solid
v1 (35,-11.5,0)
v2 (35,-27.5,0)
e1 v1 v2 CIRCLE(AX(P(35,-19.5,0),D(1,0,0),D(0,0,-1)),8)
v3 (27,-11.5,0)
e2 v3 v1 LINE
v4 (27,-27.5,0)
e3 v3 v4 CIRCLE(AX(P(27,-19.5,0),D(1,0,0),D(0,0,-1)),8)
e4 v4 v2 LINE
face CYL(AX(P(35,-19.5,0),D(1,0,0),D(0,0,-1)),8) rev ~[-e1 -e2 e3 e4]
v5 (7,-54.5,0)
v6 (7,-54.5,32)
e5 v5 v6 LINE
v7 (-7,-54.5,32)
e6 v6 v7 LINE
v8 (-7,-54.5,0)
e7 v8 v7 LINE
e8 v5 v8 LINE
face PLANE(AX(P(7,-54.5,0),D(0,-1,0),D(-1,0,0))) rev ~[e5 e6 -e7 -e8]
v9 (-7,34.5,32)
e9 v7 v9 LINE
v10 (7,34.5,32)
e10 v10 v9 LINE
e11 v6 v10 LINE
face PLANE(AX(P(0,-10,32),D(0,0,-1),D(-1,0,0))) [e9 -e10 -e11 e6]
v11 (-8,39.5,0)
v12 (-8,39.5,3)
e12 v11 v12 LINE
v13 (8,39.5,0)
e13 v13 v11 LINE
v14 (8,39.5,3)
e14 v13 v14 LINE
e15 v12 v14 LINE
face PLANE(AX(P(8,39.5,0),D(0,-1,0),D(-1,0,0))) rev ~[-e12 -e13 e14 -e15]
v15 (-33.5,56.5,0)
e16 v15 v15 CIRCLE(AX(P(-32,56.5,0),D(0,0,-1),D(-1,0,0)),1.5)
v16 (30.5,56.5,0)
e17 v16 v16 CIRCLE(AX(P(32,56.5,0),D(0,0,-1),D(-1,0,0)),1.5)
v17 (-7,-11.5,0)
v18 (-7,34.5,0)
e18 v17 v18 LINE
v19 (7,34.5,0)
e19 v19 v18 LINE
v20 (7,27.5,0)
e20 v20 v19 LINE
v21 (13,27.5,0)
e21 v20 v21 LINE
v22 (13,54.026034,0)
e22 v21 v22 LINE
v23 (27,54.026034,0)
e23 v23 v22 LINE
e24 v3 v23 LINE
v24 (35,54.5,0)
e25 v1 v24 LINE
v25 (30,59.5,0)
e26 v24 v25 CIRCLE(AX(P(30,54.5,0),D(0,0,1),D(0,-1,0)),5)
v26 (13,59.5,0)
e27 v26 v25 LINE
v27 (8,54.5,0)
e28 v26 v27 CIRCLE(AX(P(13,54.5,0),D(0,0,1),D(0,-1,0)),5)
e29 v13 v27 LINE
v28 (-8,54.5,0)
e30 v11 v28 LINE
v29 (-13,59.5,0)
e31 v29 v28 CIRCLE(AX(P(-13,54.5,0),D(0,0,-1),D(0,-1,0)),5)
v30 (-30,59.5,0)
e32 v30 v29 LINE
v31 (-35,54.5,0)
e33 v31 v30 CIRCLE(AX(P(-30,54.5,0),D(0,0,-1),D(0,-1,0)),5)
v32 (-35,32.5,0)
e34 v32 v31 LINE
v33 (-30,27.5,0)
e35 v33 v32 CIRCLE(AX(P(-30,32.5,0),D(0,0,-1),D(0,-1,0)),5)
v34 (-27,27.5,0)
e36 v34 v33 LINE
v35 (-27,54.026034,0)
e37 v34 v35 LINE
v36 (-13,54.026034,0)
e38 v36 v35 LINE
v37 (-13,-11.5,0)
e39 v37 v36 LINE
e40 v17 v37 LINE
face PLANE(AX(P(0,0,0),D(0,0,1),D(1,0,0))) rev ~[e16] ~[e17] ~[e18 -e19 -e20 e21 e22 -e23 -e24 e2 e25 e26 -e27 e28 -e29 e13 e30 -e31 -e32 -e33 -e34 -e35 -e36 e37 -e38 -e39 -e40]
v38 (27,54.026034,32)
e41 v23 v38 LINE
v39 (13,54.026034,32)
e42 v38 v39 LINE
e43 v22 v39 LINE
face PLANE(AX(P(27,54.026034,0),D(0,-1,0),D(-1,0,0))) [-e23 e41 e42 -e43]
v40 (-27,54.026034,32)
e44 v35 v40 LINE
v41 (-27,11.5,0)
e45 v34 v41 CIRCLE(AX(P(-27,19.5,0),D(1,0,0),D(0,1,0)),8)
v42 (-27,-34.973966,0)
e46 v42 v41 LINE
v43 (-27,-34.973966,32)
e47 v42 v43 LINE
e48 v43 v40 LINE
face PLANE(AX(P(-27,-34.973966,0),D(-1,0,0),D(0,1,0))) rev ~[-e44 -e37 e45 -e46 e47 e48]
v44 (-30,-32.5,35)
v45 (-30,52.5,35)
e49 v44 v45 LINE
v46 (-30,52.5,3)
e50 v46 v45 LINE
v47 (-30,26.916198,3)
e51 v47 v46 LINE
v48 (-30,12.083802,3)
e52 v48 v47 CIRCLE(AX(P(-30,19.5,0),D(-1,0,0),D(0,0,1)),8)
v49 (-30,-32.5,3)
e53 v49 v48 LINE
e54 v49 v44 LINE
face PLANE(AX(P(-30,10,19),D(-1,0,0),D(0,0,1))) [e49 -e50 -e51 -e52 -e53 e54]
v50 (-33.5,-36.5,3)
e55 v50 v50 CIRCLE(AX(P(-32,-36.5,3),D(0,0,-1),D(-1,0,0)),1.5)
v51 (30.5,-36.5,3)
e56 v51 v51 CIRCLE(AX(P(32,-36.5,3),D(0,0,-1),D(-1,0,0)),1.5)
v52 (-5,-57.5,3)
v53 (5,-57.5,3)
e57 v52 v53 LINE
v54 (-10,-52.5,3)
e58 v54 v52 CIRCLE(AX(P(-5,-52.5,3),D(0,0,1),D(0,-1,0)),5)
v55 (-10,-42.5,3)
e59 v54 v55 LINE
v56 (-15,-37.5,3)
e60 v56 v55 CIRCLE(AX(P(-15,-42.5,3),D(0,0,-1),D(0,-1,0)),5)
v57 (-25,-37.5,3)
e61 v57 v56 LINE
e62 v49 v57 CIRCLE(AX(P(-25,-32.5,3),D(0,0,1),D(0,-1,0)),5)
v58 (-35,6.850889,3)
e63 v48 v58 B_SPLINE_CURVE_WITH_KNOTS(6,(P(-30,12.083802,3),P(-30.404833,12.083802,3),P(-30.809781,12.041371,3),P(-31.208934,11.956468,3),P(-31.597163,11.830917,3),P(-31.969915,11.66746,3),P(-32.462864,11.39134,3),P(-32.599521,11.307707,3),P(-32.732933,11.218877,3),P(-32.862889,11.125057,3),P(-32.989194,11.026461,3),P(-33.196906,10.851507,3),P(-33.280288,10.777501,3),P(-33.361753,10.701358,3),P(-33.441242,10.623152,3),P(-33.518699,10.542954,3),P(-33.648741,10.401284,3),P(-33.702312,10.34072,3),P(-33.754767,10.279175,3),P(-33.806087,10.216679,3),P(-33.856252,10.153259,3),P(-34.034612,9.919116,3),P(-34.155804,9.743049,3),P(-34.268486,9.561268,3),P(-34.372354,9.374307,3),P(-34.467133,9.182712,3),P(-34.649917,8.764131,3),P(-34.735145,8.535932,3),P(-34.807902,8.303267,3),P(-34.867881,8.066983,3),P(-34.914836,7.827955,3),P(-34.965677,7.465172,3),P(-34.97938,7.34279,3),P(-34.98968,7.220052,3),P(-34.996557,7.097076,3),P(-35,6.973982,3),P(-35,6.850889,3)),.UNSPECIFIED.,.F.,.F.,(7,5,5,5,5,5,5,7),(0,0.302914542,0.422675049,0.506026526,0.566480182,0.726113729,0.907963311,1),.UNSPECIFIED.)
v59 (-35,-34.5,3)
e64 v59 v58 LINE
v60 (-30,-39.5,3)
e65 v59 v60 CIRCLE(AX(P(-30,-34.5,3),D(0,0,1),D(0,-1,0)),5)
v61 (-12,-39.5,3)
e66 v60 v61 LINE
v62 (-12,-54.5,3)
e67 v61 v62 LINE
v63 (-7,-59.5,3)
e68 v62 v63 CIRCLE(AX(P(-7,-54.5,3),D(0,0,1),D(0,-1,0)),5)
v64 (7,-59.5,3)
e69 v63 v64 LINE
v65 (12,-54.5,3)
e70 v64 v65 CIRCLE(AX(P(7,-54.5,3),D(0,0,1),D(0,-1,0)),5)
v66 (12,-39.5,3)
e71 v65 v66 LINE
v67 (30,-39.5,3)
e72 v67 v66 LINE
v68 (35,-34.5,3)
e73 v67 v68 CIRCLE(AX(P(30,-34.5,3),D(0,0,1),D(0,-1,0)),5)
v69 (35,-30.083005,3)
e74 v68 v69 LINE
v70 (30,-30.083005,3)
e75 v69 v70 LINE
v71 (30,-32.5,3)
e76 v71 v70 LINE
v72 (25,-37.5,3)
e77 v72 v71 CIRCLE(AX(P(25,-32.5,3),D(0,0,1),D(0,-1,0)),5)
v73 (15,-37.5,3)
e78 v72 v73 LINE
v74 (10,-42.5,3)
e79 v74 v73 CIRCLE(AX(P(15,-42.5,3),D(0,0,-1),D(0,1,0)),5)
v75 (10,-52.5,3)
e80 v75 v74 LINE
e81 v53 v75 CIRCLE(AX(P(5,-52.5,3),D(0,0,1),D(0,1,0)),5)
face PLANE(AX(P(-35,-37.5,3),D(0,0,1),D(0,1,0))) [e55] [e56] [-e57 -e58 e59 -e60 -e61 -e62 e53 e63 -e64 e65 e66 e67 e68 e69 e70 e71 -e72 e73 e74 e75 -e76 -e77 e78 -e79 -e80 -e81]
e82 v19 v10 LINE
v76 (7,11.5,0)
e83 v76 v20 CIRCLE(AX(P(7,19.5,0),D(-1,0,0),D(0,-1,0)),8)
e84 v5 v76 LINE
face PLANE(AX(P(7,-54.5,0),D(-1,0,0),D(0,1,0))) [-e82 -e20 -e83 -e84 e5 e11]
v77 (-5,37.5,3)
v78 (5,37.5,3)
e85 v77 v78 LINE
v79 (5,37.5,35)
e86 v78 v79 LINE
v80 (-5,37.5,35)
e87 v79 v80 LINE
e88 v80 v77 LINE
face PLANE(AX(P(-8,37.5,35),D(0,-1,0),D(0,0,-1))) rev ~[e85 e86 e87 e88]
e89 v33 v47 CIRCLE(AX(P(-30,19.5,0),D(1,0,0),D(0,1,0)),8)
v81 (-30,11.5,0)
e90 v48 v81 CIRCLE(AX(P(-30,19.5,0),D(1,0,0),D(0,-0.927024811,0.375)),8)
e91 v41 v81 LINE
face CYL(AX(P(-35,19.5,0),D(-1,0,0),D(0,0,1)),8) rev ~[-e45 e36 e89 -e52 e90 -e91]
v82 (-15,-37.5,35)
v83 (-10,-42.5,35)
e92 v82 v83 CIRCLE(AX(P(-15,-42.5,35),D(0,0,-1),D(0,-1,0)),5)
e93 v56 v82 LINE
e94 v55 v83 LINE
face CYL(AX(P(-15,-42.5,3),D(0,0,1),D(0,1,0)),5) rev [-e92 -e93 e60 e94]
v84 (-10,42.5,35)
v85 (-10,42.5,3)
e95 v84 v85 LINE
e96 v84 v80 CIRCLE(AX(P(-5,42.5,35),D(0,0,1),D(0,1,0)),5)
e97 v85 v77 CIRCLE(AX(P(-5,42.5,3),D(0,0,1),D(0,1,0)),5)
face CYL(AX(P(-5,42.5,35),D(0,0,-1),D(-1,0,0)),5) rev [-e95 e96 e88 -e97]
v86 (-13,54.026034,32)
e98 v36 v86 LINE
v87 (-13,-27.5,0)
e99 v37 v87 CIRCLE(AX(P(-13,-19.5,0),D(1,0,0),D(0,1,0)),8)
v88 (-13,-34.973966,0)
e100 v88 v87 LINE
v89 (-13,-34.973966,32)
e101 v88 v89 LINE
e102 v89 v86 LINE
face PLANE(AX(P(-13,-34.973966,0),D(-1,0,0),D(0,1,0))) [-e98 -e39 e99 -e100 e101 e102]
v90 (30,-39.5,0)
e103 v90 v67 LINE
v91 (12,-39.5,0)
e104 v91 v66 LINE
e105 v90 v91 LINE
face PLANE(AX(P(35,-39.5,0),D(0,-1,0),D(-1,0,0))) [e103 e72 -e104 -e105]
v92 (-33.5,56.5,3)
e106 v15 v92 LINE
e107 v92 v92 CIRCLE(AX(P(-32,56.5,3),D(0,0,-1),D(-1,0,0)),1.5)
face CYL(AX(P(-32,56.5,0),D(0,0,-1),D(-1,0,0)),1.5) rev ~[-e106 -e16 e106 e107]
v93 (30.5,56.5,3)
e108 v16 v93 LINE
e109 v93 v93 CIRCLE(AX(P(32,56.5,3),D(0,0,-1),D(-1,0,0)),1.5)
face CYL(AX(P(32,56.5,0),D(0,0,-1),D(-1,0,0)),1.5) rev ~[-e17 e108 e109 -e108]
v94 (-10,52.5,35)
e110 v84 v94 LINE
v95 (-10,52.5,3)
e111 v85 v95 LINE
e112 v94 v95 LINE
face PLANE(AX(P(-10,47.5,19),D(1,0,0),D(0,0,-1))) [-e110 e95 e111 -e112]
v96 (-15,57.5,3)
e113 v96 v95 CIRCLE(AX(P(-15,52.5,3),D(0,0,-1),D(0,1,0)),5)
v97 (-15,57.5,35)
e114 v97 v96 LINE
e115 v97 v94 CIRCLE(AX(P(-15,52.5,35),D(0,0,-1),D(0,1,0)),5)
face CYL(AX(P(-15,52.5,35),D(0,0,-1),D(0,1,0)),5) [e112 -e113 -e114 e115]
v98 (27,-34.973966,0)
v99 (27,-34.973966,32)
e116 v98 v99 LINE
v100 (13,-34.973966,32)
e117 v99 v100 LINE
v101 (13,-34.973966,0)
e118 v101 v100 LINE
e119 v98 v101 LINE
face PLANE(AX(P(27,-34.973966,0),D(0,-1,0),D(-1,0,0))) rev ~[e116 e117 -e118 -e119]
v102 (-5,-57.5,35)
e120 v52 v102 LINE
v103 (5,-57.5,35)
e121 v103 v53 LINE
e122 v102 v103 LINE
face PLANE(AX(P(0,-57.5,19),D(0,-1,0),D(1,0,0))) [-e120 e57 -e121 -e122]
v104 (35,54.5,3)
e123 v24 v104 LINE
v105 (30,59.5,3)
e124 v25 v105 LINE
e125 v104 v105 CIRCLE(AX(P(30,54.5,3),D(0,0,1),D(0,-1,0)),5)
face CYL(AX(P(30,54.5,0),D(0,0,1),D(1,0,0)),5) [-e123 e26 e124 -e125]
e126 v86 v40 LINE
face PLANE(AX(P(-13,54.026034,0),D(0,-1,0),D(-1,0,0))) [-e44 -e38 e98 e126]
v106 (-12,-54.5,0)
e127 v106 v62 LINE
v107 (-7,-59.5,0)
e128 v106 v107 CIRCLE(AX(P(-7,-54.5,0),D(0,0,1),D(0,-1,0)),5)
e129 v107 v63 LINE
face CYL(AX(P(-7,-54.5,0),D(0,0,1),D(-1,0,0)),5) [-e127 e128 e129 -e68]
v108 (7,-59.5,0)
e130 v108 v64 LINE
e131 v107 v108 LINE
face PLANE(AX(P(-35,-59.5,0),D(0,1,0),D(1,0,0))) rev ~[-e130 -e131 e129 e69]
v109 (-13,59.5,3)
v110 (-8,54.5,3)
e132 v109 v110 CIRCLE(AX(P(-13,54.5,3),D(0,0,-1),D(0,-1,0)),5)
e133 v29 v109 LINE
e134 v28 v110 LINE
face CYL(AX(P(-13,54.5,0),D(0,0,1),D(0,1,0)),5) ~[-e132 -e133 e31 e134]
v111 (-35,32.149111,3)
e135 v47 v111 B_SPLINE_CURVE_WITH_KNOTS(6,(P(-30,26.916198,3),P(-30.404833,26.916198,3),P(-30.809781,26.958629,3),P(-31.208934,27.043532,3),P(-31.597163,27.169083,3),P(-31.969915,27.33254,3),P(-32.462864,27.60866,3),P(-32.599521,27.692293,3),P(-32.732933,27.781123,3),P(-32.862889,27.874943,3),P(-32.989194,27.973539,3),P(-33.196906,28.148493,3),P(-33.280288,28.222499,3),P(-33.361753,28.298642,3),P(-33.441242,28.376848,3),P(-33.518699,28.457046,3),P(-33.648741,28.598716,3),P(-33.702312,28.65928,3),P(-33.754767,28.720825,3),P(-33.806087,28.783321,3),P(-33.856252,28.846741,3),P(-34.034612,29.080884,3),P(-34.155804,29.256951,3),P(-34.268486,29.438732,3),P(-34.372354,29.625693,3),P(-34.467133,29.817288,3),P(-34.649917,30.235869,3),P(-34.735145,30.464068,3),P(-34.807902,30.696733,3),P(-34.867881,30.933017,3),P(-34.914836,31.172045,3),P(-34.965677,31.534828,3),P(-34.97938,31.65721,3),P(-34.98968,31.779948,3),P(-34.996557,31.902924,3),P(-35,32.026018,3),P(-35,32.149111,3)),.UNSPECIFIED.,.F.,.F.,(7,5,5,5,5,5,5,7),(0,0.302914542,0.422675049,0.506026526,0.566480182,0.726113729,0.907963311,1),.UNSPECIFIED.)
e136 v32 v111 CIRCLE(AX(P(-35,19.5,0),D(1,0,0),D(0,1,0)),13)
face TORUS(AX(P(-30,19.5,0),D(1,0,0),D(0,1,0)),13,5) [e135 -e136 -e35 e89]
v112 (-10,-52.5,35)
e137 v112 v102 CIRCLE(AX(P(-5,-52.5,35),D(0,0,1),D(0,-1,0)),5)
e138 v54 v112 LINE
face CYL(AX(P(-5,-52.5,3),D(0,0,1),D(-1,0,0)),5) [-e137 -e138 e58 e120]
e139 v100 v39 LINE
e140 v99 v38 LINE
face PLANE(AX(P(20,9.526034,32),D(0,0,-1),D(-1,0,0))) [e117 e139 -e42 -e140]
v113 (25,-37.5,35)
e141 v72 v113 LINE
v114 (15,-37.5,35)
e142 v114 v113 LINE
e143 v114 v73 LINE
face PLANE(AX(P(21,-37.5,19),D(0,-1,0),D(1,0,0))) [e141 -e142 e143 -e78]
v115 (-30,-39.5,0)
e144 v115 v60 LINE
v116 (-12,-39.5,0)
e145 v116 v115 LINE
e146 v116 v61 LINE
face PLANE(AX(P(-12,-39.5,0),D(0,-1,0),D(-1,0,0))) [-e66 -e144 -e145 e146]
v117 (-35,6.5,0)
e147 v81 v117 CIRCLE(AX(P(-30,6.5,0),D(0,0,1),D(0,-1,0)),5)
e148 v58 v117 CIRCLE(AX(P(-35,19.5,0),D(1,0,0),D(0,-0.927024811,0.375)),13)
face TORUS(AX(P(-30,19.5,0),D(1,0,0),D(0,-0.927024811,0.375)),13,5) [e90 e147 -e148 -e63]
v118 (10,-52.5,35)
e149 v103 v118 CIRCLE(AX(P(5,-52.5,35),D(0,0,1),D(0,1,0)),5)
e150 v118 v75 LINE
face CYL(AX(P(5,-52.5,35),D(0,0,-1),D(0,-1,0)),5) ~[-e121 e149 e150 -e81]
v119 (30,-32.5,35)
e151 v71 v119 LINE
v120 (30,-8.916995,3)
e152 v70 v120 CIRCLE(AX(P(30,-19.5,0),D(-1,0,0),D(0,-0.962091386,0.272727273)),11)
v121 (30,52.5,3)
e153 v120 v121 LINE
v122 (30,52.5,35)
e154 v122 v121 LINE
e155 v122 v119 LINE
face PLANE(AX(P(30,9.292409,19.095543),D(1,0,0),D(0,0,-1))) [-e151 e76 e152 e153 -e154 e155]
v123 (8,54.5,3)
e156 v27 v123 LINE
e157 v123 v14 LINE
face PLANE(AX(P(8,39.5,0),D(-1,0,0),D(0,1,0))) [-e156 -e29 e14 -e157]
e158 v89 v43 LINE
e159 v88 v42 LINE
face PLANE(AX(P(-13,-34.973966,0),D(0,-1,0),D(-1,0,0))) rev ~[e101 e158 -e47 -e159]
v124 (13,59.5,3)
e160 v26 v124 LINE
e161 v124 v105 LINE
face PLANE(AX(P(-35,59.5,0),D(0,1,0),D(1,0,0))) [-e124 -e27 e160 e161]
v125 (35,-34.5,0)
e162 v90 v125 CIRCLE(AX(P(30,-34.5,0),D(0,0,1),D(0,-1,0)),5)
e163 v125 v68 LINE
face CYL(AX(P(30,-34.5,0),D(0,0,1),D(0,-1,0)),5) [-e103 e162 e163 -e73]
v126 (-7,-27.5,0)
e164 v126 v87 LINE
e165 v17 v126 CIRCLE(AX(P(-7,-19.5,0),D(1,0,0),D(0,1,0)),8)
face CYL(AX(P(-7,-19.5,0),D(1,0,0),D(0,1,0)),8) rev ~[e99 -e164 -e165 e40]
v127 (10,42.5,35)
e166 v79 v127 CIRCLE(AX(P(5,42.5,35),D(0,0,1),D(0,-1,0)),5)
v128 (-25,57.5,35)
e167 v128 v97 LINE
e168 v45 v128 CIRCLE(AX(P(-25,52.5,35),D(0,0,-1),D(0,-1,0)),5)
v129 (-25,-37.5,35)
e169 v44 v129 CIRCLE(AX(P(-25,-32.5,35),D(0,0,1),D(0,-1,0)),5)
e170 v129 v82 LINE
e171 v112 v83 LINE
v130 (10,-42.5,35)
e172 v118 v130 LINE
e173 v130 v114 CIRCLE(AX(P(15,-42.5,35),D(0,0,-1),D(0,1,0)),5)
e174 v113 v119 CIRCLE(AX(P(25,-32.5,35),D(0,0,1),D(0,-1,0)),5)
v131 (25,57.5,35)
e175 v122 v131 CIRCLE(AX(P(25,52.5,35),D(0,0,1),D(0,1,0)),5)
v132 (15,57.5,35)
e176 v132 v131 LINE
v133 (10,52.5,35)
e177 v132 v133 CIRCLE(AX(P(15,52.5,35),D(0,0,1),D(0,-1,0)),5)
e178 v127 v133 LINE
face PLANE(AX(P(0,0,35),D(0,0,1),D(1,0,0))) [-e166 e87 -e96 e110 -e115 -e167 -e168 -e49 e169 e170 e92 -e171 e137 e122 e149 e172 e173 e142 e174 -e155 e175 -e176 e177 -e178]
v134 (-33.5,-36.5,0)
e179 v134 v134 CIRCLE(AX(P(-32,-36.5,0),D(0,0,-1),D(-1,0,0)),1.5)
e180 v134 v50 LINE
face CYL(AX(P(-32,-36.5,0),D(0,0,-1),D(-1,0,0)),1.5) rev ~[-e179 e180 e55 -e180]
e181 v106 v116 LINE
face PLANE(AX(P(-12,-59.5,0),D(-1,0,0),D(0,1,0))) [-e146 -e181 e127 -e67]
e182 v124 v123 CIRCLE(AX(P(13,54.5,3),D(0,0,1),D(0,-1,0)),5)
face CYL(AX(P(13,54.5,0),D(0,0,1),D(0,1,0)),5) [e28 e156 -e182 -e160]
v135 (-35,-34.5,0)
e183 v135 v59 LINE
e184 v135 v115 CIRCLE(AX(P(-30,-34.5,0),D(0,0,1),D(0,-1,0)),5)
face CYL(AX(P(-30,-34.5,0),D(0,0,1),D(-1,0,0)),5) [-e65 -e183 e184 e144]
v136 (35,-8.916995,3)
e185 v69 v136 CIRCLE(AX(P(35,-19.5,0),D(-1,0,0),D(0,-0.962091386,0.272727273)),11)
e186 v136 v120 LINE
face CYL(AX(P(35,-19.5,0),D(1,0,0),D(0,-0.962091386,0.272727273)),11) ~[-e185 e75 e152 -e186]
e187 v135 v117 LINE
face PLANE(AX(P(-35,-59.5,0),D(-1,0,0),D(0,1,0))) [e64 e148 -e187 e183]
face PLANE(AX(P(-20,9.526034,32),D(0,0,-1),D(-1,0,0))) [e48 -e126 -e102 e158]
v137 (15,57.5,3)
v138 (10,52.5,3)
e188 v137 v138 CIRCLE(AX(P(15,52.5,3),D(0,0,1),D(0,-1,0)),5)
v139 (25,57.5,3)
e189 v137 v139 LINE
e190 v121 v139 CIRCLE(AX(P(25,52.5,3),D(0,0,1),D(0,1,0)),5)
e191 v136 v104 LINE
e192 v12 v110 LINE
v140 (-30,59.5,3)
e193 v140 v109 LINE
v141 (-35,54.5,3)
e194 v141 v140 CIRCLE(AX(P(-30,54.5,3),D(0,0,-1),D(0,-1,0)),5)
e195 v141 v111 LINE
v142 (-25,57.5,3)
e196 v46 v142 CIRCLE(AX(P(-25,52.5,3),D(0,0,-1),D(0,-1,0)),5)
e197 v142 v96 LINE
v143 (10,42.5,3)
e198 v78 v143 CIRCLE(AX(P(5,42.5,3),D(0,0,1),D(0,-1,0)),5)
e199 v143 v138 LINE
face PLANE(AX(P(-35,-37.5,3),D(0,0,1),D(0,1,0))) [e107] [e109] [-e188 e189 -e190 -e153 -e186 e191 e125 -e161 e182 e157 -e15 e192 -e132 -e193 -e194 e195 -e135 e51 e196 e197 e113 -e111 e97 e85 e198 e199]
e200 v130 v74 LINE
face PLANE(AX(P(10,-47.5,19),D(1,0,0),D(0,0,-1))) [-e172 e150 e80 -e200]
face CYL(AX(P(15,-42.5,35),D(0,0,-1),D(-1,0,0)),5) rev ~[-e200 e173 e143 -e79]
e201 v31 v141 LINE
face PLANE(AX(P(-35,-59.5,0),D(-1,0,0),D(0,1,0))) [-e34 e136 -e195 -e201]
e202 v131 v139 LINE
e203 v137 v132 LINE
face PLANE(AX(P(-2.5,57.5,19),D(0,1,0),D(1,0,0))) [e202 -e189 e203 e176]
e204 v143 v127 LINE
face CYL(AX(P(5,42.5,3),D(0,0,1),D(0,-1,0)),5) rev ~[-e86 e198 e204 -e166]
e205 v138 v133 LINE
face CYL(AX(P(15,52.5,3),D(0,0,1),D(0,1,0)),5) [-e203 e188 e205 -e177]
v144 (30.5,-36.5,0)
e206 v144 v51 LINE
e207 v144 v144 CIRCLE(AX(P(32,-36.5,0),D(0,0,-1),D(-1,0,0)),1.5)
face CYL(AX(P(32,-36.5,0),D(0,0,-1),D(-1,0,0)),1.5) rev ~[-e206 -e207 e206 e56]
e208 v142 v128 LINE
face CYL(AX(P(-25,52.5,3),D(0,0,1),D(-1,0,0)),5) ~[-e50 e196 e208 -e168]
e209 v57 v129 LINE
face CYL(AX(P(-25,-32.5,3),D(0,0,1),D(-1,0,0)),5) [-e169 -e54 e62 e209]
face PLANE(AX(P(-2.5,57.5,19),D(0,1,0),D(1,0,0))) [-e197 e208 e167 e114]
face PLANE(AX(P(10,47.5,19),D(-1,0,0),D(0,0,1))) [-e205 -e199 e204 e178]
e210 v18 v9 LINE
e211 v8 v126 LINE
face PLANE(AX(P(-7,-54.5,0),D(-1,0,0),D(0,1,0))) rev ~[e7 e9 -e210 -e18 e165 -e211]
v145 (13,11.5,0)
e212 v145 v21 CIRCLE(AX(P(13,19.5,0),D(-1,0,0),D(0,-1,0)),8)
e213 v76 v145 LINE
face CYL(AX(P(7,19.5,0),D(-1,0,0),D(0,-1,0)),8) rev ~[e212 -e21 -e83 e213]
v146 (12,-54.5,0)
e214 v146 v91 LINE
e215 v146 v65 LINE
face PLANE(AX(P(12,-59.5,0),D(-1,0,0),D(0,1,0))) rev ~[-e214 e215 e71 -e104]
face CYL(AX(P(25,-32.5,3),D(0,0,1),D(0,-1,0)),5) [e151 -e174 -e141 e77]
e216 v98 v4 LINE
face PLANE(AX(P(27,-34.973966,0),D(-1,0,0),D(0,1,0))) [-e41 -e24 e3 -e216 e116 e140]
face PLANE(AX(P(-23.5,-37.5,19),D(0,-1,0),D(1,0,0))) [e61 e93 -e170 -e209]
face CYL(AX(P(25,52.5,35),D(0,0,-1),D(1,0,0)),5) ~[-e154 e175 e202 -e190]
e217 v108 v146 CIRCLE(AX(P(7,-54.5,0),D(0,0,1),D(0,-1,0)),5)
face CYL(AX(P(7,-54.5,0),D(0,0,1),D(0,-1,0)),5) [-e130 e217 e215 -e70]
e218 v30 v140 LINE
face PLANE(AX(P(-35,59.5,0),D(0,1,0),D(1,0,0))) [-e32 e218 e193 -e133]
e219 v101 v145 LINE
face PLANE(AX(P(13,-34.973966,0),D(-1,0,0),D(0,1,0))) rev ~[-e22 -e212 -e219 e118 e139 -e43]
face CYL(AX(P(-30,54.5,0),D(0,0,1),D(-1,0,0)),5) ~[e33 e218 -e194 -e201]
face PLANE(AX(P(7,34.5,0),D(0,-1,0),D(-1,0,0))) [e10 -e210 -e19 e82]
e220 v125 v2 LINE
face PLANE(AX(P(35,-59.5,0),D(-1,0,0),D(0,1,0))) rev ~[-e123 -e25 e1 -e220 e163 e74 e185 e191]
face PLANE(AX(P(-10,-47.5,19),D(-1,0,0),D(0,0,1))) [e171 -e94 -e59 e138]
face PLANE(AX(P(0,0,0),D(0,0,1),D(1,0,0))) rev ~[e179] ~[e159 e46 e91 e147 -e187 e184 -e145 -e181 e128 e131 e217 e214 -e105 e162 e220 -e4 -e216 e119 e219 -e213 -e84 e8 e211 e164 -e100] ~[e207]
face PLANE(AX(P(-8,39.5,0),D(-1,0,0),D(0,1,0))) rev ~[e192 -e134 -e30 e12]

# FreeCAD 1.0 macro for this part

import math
import FreeCAD as App
import Part
import Sketcher

V = App.Vector
Q = App.Units.Quantity


def edges_at(feature, points):
    """Names of the edges that pass closest to the given points."""
    edges = feature.Shape.Edges
    near = lambda p: min(range(len(edges)), key=lambda i: edges[i].distToShape(Part.Vertex(*p))[0])
    return sorted({f"Edge{near(p) + 1}" for p in points})


def add_polygon(sketch, points):
    """Adds a closed chain of lines whose ends are joined by coincident constraints."""
    first, n = sketch.GeometryCount, len(points)
    for a, b in zip(points, points[1:] + points[:1]):
        sketch.addGeometry(Part.LineSegment(App.Vector(*a, 0), App.Vector(*b, 0)), False)
    for i in range(n):
        sketch.addConstraint(Sketcher.Constraint("Coincident", first + i, 2, first + (i + 1) % n, 1))

doc = App.newDocument("Part")
params = doc.addObject("Spreadsheet::Sheet", "Params")
for row, (alias, value) in enumerate([
    ("sketch1_width", "70 mm"),
    ("sketch1_height", "119 mm"),
    ("pad1_length", "35 mm"),
    ("sketch2_diameter", "16 mm"),
    ("pocket1_length", "8 mm"),
    ("sketch3_diameter", "16 mm"),
    ("pocket2_length", "8 mm"),
    ("sketch4_width", "14 mm"),
    ("sketch4_height", "89 mm"),
    ("pocket3_length", "32 mm"),
    ("sketch5_radius", "8 mm"),
    ("sketch6_radius", "8 mm"),
    ("sketch7_width", "23 mm"),
    ("sketch7_width2", "16 mm"),
    ("sketch7_height", "20 mm"),
    ("sketch8_radius", "11 mm"),
    ("sketch8_width", "99 mm"),
    ("sketch8_height", "32 mm"),
    ("pocket7_length", "5 mm"),
    ("sketch9_width", "18 mm"),
    ("sketch9_height", "32 mm"),
    ("pocket8_length", "2 mm"),
    ("sketch10_width", "24 mm"),
    ("sketch10_height", "32 mm"),
    ("pocket9_length", "2 mm"),
    ("sketch11_width", "23 mm"),
    ("sketch11_height", "32 mm"),
    ("pocket10_length", "2 mm"),
    ("sketch12_width", "20 mm"),
    ("sketch12_height", "32 mm"),
    ("pocket11_length", "2 mm"),
    ("sketch13_width", "20 mm"),
    ("sketch13_height", "32 mm"),
    ("pocket12_length", "2 mm"),
    ("sketch14_width", "65 mm"),
    ("sketch14_height", "32 mm"),
    ("pocket13_length", "2 mm"),
    ("sketch15_width", "16 mm"),
    ("sketch15_height", "32 mm"),
    ("pocket14_length", "2 mm"),
    ("sketch16_width", "20 mm"),
    ("sketch16_height", "32 mm"),
    ("pocket15_length", "2 mm"),
    ("sketch17_width", "20 mm"),
    ("sketch17_height", "32 mm"),
    ("pocket16_length", "2 mm"),
    ("sketch18_width", "95 mm"),
    ("sketch18_height", "32 mm"),
    ("pocket17_length", "5 mm"),
    ("sketch19_diameter", "3 mm"),
    ("pocket18_length", "10 mm"),
    ("fillet_radius", "5 mm"),
    ("fillet2_radius", "5 mm"),
], start=1):
    params.set(f"A{row}", alias)
    params.set(f"B{row}", "=" + value)
    params.setAlias(f"B{row}", alias)

body = doc.addObject("PartDesign::Body", "Body")

# Sketch on XY plane
sketch1 = body.newObject("Sketcher::SketchObject", "Sketch")
sketch1.AttachmentSupport = (doc.getObject("XY_Plane"), [""])
sketch1.MapMode = "FlatFace"
add_polygon(sketch1, [(-35, 60), (-35, -60), (35, -60), (35, 60)])  # lines 0-3
sketch1.addConstraint(Sketcher.Constraint("Vertical", 0))
sketch1.addConstraint(Sketcher.Constraint("Horizontal", 1))
sketch1.addConstraint(Sketcher.Constraint("Vertical", 2))
sketch1.addConstraint(Sketcher.Constraint("Horizontal", 3))
sketch1.addConstraint(Sketcher.Constraint("Symmetric", 0, 2, 2, 2, -1, 1))
sketch1.addConstraint(Sketcher.Constraint("DistanceX", 1, 1, 1, 2, Q("70 mm")))
sketch1.addConstraint(Sketcher.Constraint("DistanceY", 0, 2, 0, 1, Q("119 mm")))
sketch1.setExpression("Constraints[9]", "Params.sketch1_width")
sketch1.setExpression("Constraints[10]", "Params.sketch1_height")
pad1 = body.newObject("PartDesign::Pad", "Pad")
pad1.Profile = sketch1
pad1.setExpression("Length", "Params.pad1_length")

# Sketch on YZ plane
sketch2 = body.newObject("Sketcher::SketchObject", "Sketch001")
sketch2.AttachmentSupport = (doc.getObject("YZ_Plane"), [""])
sketch2.MapMode = "FlatFace"
sketch2.AttachmentOffset = App.Placement(V(0, 0, 35), App.Rotation())
sketch2.addGeometry(Part.Circle(V(-20, 0, 0), V(0, 0, 1), 8), False)
sketch2.addConstraint(Sketcher.Constraint("PointOnObject", 0, 3, -1))
sketch2.addConstraint(Sketcher.Constraint("Diameter", 0, Q("16 mm")))
sketch2.addConstraint(Sketcher.Constraint("DistanceX", 0, 3, -1, 1, Q("19.5 mm")))
sketch2.setExpression("Constraints[1]", "Params.sketch2_diameter")
pocket1 = body.newObject("PartDesign::Pocket", "Pocket")
pocket1.Profile = sketch2
pocket1.setExpression("Length", "Params.pocket1_length")

# Sketch on YZ plane
sketch3 = body.newObject("Sketcher::SketchObject", "Sketch002")
sketch3.AttachmentSupport = (doc.getObject("YZ_Plane"), [""])
sketch3.MapMode = "FlatFace"
sketch3.AttachmentOffset = App.Placement(V(0, 0, -35), App.Rotation())
sketch3.addGeometry(Part.Circle(V(20, 0, 0), V(0, 0, 1), 8), False)
sketch3.addConstraint(Sketcher.Constraint("PointOnObject", 0, 3, -1))
sketch3.addConstraint(Sketcher.Constraint("Diameter", 0, Q("16 mm")))
sketch3.addConstraint(Sketcher.Constraint("DistanceX", -1, 1, 0, 3, Q("19.5 mm")))
sketch3.setExpression("Constraints[1]", "Params.sketch3_diameter")
pocket2 = body.newObject("PartDesign::Pocket", "Pocket001")
pocket2.Profile = sketch3
pocket2.setExpression("Length", "Params.pocket2_length")
pocket2.Reversed = True

# Sketch on XY plane
sketch4 = body.newObject("Sketcher::SketchObject", "Sketch003")
sketch4.AttachmentSupport = (doc.getObject("XY_Plane"), [""])
sketch4.MapMode = "FlatFace"
add_polygon(sketch4, [(27, 54), (27, -35), (13, -35), (13, 54)])  # lines 0-3
add_polygon(sketch4, [(7, 34), (7, -54), (-7, -54), (-7, 34)])  # lines 4-7
add_polygon(sketch4, [(-13, 54), (-13, -35), (-27, -35), (-27, 54)])  # lines 8-11
sketch4.addConstraint(Sketcher.Constraint("Vertical", 0))
sketch4.addConstraint(Sketcher.Constraint("Horizontal", 1))
sketch4.addConstraint(Sketcher.Constraint("Vertical", 2))
sketch4.addConstraint(Sketcher.Constraint("Horizontal", 3))
sketch4.addConstraint(Sketcher.Constraint("Vertical", 4))
sketch4.addConstraint(Sketcher.Constraint("Horizontal", 5))
sketch4.addConstraint(Sketcher.Constraint("Vertical", 6))
sketch4.addConstraint(Sketcher.Constraint("Horizontal", 7))
sketch4.addConstraint(Sketcher.Constraint("Vertical", 8))
sketch4.addConstraint(Sketcher.Constraint("Horizontal", 9))
sketch4.addConstraint(Sketcher.Constraint("Vertical", 10))
sketch4.addConstraint(Sketcher.Constraint("Horizontal", 11))
sketch4.addConstraint(Sketcher.Constraint("Symmetric", 1, 2, 8, 2, -2))
sketch4.addConstraint(Sketcher.Constraint("Symmetric", 3, 2, 10, 2, -2))
sketch4.addConstraint(Sketcher.Constraint("Equal", 3, 5))
sketch4.addConstraint(Sketcher.Constraint("Equal", 2, 4))
sketch4.addConstraint(Sketcher.Constraint("DistanceX", 1, 2, 1, 1, Q("14 mm")))
sketch4.addConstraint(Sketcher.Constraint("DistanceY", 0, 2, 0, 1, Q("89 mm")))
sketch4.addConstraint(Sketcher.Constraint("DistanceX", -1, 1, 0, 2, Q("27 mm")))
sketch4.addConstraint(Sketcher.Constraint("DistanceX", -1, 1, 4, 2, Q("7 mm")))
sketch4.addConstraint(Sketcher.Constraint("DistanceY", 4, 2, -1, 1, Q("54.5 mm")))
sketch4.addConstraint(Sketcher.Constraint("DistanceY", 0, 2, -1, 1, Q("34.973966 mm")))
sketch4.setExpression("Constraints[28]", "Params.sketch4_width")
sketch4.setExpression("Constraints[29]", "Params.sketch4_height")
pocket3 = body.newObject("PartDesign::Pocket", "Pocket002")
pocket3.Profile = sketch4
pocket3.setExpression("Length", "Params.pocket3_length")
pocket3.Reversed = True

# Sketch on YZ plane
sketch5 = body.newObject("Sketcher::SketchObject", "Sketch004")
sketch5.AttachmentSupport = (doc.getObject("YZ_Plane"), [""])
sketch5.MapMode = "FlatFace"
sketch5.AttachmentOffset = App.Placement(V(0, 0, 7), App.Rotation())
sketch5.addGeometry(Part.LineSegment(V(28, 0, 0), V(12, 0, 0)), False)
sketch5.addGeometry(Part.ArcOfCircle(Part.Circle(V(20, 0, 0), V(0, 0, 1), 8), math.radians(0), math.radians(180)), False)
sketch5.addConstraint(Sketcher.Constraint("Coincident", 0, 1, 1, 1))
sketch5.addConstraint(Sketcher.Constraint("Coincident", 1, 2, 0, 2))
sketch5.addConstraint(Sketcher.Constraint("Horizontal", 0))
sketch5.addConstraint(Sketcher.Constraint("PointOnObject", 1, 3, -1))
sketch5.addConstraint(Sketcher.Constraint("PointOnObject", 0, 1, -1))
sketch5.addConstraint(Sketcher.Constraint("Radius", 1, Q("8 mm")))
sketch5.addConstraint(Sketcher.Constraint("DistanceX", -1, 1, 1, 3, Q("19.5 mm")))
sketch5.setExpression("Constraints[5]", "Params.sketch5_radius")
pocket4 = body.newObject("PartDesign::Pocket", "Pocket003")
pocket4.Profile = sketch5
pocket4.Type = "UpToFirst"
pocket4.Reversed = True

# Sketch on YZ plane
sketch6 = body.newObject("Sketcher::SketchObject", "Sketch005")
sketch6.AttachmentSupport = (doc.getObject("YZ_Plane"), [""])
sketch6.MapMode = "FlatFace"
sketch6.AttachmentOffset = App.Placement(V(0, 0, -7), App.Rotation())
sketch6.addGeometry(Part.LineSegment(V(-28, 0, 0), V(-12, 0, 0)), False)
sketch6.addGeometry(Part.ArcOfCircle(Part.Circle(V(-20, 0, 0), V(0, 0, 1), 8), math.radians(0), math.radians(180)), False)
sketch6.addConstraint(Sketcher.Constraint("Coincident", 0, 1, 1, 2))
sketch6.addConstraint(Sketcher.Constraint("Coincident", 1, 1, 0, 2))
sketch6.addConstraint(Sketcher.Constraint("Horizontal", 0))
sketch6.addConstraint(Sketcher.Constraint("PointOnObject", 1, 3, -1))
sketch6.addConstraint(Sketcher.Constraint("PointOnObject", 0, 1, -1))
sketch6.addConstraint(Sketcher.Constraint("Radius", 1, Q("8 mm")))
sketch6.addConstraint(Sketcher.Constraint("DistanceX", 1, 3, -1, 1, Q("19.5 mm")))
sketch6.setExpression("Constraints[5]", "Params.sketch6_radius")
pocket5 = body.newObject("PartDesign::Pocket", "Pocket004")
pocket5.Profile = sketch6
pocket5.Type = "UpToFirst"

# Sketch on XY plane
sketch7 = body.newObject("Sketcher::SketchObject", "Sketch006")
sketch7.AttachmentSupport = (doc.getObject("XY_Plane"), [""])
sketch7.MapMode = "FlatFace"
add_polygon(sketch7, [(-12, -40), (-12, -60), (-35, -60), (-35, -40)])  # lines 0-3
add_polygon(sketch7, [(8, 60), (8, 40), (-8, 40), (-8, 60)])  # lines 4-7
add_polygon(sketch7, [(35, -40), (35, -60), (12, -60), (12, -40)])  # lines 8-11
sketch7.addConstraint(Sketcher.Constraint("Vertical", 0))
sketch7.addConstraint(Sketcher.Constraint("Horizontal", 1))
sketch7.addConstraint(Sketcher.Constraint("Vertical", 2))
sketch7.addConstraint(Sketcher.Constraint("Horizontal", 3))
sketch7.addConstraint(Sketcher.Constraint("Vertical", 4))
sketch7.addConstraint(Sketcher.Constraint("Horizontal", 5))
sketch7.addConstraint(Sketcher.Constraint("Vertical", 6))
sketch7.addConstraint(Sketcher.Constraint("Horizontal", 7))
sketch7.addConstraint(Sketcher.Constraint("Vertical", 8))
sketch7.addConstraint(Sketcher.Constraint("Horizontal", 9))
sketch7.addConstraint(Sketcher.Constraint("Vertical", 10))
sketch7.addConstraint(Sketcher.Constraint("Horizontal", 11))
sketch7.addConstraint(Sketcher.Constraint("Symmetric", 1, 2, 8, 2, -2))
sketch7.addConstraint(Sketcher.Constraint("Symmetric", 3, 2, 10, 2, -2))
sketch7.addConstraint(Sketcher.Constraint("Equal", 2, 4))
sketch7.addConstraint(Sketcher.Constraint("DistanceX", 1, 2, 1, 1, Q("23 mm")))
sketch7.addConstraint(Sketcher.Constraint("DistanceX", 5, 2, 5, 1, Q("16 mm")))
sketch7.addConstraint(Sketcher.Constraint("DistanceY", 0, 2, 0, 1, Q("20 mm")))
sketch7.addConstraint(Sketcher.Constraint("DistanceX", 0, 2, -1, 1, Q("12 mm")))
sketch7.addConstraint(Sketcher.Constraint("DistanceX", -1, 1, 4, 2, Q("8 mm")))
sketch7.addConstraint(Sketcher.Constraint("DistanceY", 3, 2, 4, 2, Q("79 mm")))
sketch7.addConstraint(Sketcher.Constraint("DistanceY", 0, 2, -1, 1, Q("59.5 mm")))
sketch7.setExpression("Constraints[27]", "Params.sketch7_width")
sketch7.setExpression("Constraints[28]", "Params.sketch7_width2")
sketch7.setExpression("Constraints[29]", "Params.sketch7_height")
pocket6 = body.newObject("PartDesign::Pocket", "Pocket005")
pocket6.Profile = sketch7
pocket6.Type = "ThroughAll"
pocket6.Reversed = True

# Sketch on YZ plane
sketch8 = body.newObject("Sketcher::SketchObject", "Sketch007")
sketch8.AttachmentSupport = (doc.getObject("YZ_Plane"), [""])
sketch8.MapMode = "FlatFace"
sketch8.AttachmentOffset = App.Placement(V(0, 0, 35), App.Rotation())
sketch8.addGeometry(Part.LineSegment(V(60, 3, 0), V(60, 35, 0)), False)
sketch8.addGeometry(Part.LineSegment(V(60, 35, 0), V(-40, 35, 0)), False)
sketch8.addGeometry(Part.LineSegment(V(-40, 35, 0), V(-40, 3, 0)), False)
sketch8.addGeometry(Part.LineSegment(V(-40, 3, 0), V(-30, 3, 0)), False)
sketch8.addGeometry(Part.ArcOfCircle(Part.Circle(V(-20, 0, 0), V(0, 0, 1), 11), math.radians(16), math.radians(164)), False)
sketch8.addGeometry(Part.LineSegment(V(-9, 3, 0), V(60, 3, 0)), False)
sketch8.addConstraint(Sketcher.Constraint("Coincident", 0, 2, 1, 1))
sketch8.addConstraint(Sketcher.Constraint("Coincident", 1, 2, 2, 1))
sketch8.addConstraint(Sketcher.Constraint("Coincident", 2, 2, 3, 1))
sketch8.addConstraint(Sketcher.Constraint("Coincident", 3, 2, 4, 2))
sketch8.addConstraint(Sketcher.Constraint("Coincident", 4, 1, 5, 1))
sketch8.addConstraint(Sketcher.Constraint("Coincident", 5, 2, 0, 1))
sketch8.addConstraint(Sketcher.Constraint("Vertical", 0))
sketch8.addConstraint(Sketcher.Constraint("Horizontal", 1))
sketch8.addConstraint(Sketcher.Constraint("Vertical", 2))
sketch8.addConstraint(Sketcher.Constraint("Horizontal", 3))
sketch8.addConstraint(Sketcher.Constraint("Horizontal", 5))
sketch8.addConstraint(Sketcher.Constraint("PointOnObject", 4, 3, -1))
sketch8.addConstraint(Sketcher.Constraint("Horizontal", 3, 2, 4, 1))
sketch8.addConstraint(Sketcher.Constraint("Radius", 4, Q("11 mm")))
sketch8.addConstraint(Sketcher.Constraint("DistanceX", 1, 2, 1, 1, Q("99 mm")))
sketch8.addConstraint(Sketcher.Constraint("DistanceY", 0, 1, 0, 2, Q("32 mm")))
sketch8.addConstraint(Sketcher.Constraint("DistanceY", -1, 1, 0, 2, Q("35 mm")))
sketch8.addConstraint(Sketcher.Constraint("DistanceX", 4, 3, 0, 2, Q("79 mm")))
sketch8.addConstraint(Sketcher.Constraint("DistanceX", 4, 3, -1, 1, Q("19.5 mm")))
sketch8.setExpression("Constraints[13]", "Params.sketch8_radius")
sketch8.setExpression("Constraints[14]", "Params.sketch8_width")
sketch8.setExpression("Constraints[15]", "Params.sketch8_height")
pocket7 = body.newObject("PartDesign::Pocket", "Pocket006")
pocket7.Profile = sketch8
pocket7.setExpression("Length", "Params.pocket7_length")

# Sketch on XZ plane
sketch9 = body.newObject("Sketcher::SketchObject", "Sketch008")
sketch9.AttachmentSupport = (doc.getObject("XZ_Plane"), [""])
sketch9.MapMode = "FlatFace"
sketch9.AttachmentOffset = App.Placement(V(0, 0, 39.5), App.Rotation())
add_polygon(sketch9, [(12, 35), (12, 3), (30, 3), (30, 35)])  # lines 0-3
sketch9.addConstraint(Sketcher.Constraint("Vertical", 0))
sketch9.addConstraint(Sketcher.Constraint("Horizontal", 1))
sketch9.addConstraint(Sketcher.Constraint("Vertical", 2))
sketch9.addConstraint(Sketcher.Constraint("Horizontal", 3))
sketch9.addConstraint(Sketcher.Constraint("DistanceX", 1, 1, 1, 2, Q("18 mm")))
sketch9.addConstraint(Sketcher.Constraint("DistanceY", 0, 2, 0, 1, Q("32 mm")))
sketch9.addConstraint(Sketcher.Constraint("DistanceX", -1, 1, 0, 2, Q("12 mm")))
sketch9.addConstraint(Sketcher.Constraint("DistanceY", -1, 1, 0, 2, Q("3 mm")))
sketch9.setExpression("Constraints[8]", "Params.sketch9_width")
sketch9.setExpression("Constraints[9]", "Params.sketch9_height")
pocket8 = body.newObject("PartDesign::Pocket", "Pocket007")
pocket8.Profile = sketch9
pocket8.setExpression("Length", "Params.pocket8_length")

# Sketch on XZ plane
sketch10 = body.newObject("Sketcher::SketchObject", "Sketch009")
sketch10.AttachmentSupport = (doc.getObject("XZ_Plane"), [""])
sketch10.MapMode = "FlatFace"
sketch10.AttachmentOffset = App.Placement(V(0, 0, 59.5), App.Rotation())
add_polygon(sketch10, [(-12, 35), (-12, 3), (12, 3), (12, 35)])  # lines 0-3
sketch10.addConstraint(Sketcher.Constraint("Vertical", 0))
sketch10.addConstraint(Sketcher.Constraint("Horizontal", 1))
sketch10.addConstraint(Sketcher.Constraint("Vertical", 2))
sketch10.addConstraint(Sketcher.Constraint("Horizontal", 3))
sketch10.addConstraint(Sketcher.Constraint("DistanceX", 1, 1, 1, 2, Q("24 mm")))
sketch10.addConstraint(Sketcher.Constraint("DistanceY", 0, 2, 0, 1, Q("32 mm")))
sketch10.addConstraint(Sketcher.Constraint("DistanceX", 0, 2, -1, 1, Q("12 mm")))
sketch10.addConstraint(Sketcher.Constraint("DistanceY", -1, 1, 0, 2, Q("3 mm")))
sketch10.setExpression("Constraints[8]", "Params.sketch10_width")
sketch10.setExpression("Constraints[9]", "Params.sketch10_height")
pocket9 = body.newObject("PartDesign::Pocket", "Pocket008")
pocket9.Profile = sketch10
pocket9.setExpression("Length", "Params.pocket9_length")

# Sketch on XZ plane
sketch11 = body.newObject("Sketcher::SketchObject", "Sketch010")
sketch11.AttachmentSupport = (doc.getObject("XZ_Plane"), [""])
sketch11.MapMode = "FlatFace"
sketch11.AttachmentOffset = App.Placement(V(0, 0, 39.5), App.Rotation())
add_polygon(sketch11, [(-35, 35), (-35, 3), (-12, 3), (-12, 35)])  # lines 0-3
sketch11.addConstraint(Sketcher.Constraint("Vertical", 0))
sketch11.addConstraint(Sketcher.Constraint("Horizontal", 1))
sketch11.addConstraint(Sketcher.Constraint("Vertical", 2))
sketch11.addConstraint(Sketcher.Constraint("Horizontal", 3))
sketch11.addConstraint(Sketcher.Constraint("DistanceX", 1, 1, 1, 2, Q("23 mm")))
sketch11.addConstraint(Sketcher.Constraint("DistanceY", 0, 2, 0, 1, Q("32 mm")))
sketch11.addConstraint(Sketcher.Constraint("DistanceX", 0, 2, -1, 1, Q("35 mm")))
sketch11.addConstraint(Sketcher.Constraint("DistanceY", -1, 1, 0, 2, Q("3 mm")))
sketch11.setExpression("Constraints[8]", "Params.sketch11_width")
sketch11.setExpression("Constraints[9]", "Params.sketch11_height")
pocket10 = body.newObject("PartDesign::Pocket", "Pocket009")
pocket10.Profile = sketch11
pocket10.setExpression("Length", "Params.pocket10_length")

# Sketch on YZ plane
sketch12 = body.newObject("Sketcher::SketchObject", "Sketch011")
sketch12.AttachmentSupport = (doc.getObject("YZ_Plane"), [""])
sketch12.MapMode = "FlatFace"
sketch12.AttachmentOffset = App.Placement(V(0, 0, -12), App.Rotation())
add_polygon(sketch12, [(-38, 3), (-58, 3), (-58, 35), (-38, 35)])  # lines 0-3
sketch12.addConstraint(Sketcher.Constraint("Horizontal", 0))
sketch12.addConstraint(Sketcher.Constraint("Vertical", 1))
sketch12.addConstraint(Sketcher.Constraint("Horizontal", 2))
sketch12.addConstraint(Sketcher.Constraint("Vertical", 3))
sketch12.addConstraint(Sketcher.Constraint("DistanceX", 0, 2, 0, 1, Q("20 mm")))
sketch12.addConstraint(Sketcher.Constraint("DistanceY", 1, 1, 1, 2, Q("32 mm")))
sketch12.addConstraint(Sketcher.Constraint("DistanceY", -1, 1, 0, 2, Q("3 mm")))
sketch12.addConstraint(Sketcher.Constraint("DistanceX", 0, 2, -1, 1, Q("57.5 mm")))
sketch12.setExpression("Constraints[8]", "Params.sketch12_width")
sketch12.setExpression("Constraints[9]", "Params.sketch12_height")
pocket11 = body.newObject("PartDesign::Pocket", "Pocket010")
pocket11.Profile = sketch12
pocket11.setExpression("Length", "Params.pocket11_length")
pocket11.Reversed = True

# Sketch on YZ plane
sketch13 = body.newObject("Sketcher::SketchObject", "Sketch012")
sketch13.AttachmentSupport = (doc.getObject("YZ_Plane"), [""])
sketch13.MapMode = "FlatFace"
sketch13.AttachmentOffset = App.Placement(V(0, 0, 12), App.Rotation())
add_polygon(sketch13, [(-38, 35), (-58, 35), (-58, 3), (-38, 3)])  # lines 0-3
sketch13.addConstraint(Sketcher.Constraint("Horizontal", 0))
sketch13.addConstraint(Sketcher.Constraint("Vertical", 1))
sketch13.addConstraint(Sketcher.Constraint("Horizontal", 2))
sketch13.addConstraint(Sketcher.Constraint("Vertical", 3))
sketch13.addConstraint(Sketcher.Constraint("DistanceX", 0, 2, 0, 1, Q("20 mm")))
sketch13.addConstraint(Sketcher.Constraint("DistanceY", 1, 2, 1, 1, Q("32 mm")))
sketch13.addConstraint(Sketcher.Constraint("DistanceY", -1, 1, 0, 2, Q("35 mm")))
sketch13.addConstraint(Sketcher.Constraint("DistanceX", 0, 2, -1, 1, Q("57.5 mm")))
sketch13.setExpression("Constraints[8]", "Params.sketch13_width")
sketch13.setExpression("Constraints[9]", "Params.sketch13_height")
pocket12 = body.newObject("PartDesign::Pocket", "Pocket011")
pocket12.Profile = sketch13
pocket12.setExpression("Length", "Params.pocket12_length")

# Sketch on XZ plane
sketch14 = body.newObject("Sketcher::SketchObject", "Sketch013")
sketch14.AttachmentSupport = (doc.getObject("XZ_Plane"), [""])
sketch14.MapMode = "FlatFace"
sketch14.AttachmentOffset = App.Placement(V(0, 0, -59.5), App.Rotation())
add_polygon(sketch14, [(-35, 3), (-35, 35), (30, 35), (30, 3)])  # lines 0-3
sketch14.addConstraint(Sketcher.Constraint("Vertical", 0))
sketch14.addConstraint(Sketcher.Constraint("Horizontal", 1))
sketch14.addConstraint(Sketcher.Constraint("Vertical", 2))
sketch14.addConstraint(Sketcher.Constraint("Horizontal", 3))
sketch14.addConstraint(Sketcher.Constraint("DistanceX", 1, 1, 1, 2, Q("65 mm")))
sketch14.addConstraint(Sketcher.Constraint("DistanceY", 0, 1, 0, 2, Q("32 mm")))
sketch14.addConstraint(Sketcher.Constraint("DistanceX", 0, 2, -1, 1, Q("35 mm")))
sketch14.addConstraint(Sketcher.Constraint("DistanceY", -1, 1, 0, 2, Q("35 mm")))
sketch14.setExpression("Constraints[8]", "Params.sketch14_width")
sketch14.setExpression("Constraints[9]", "Params.sketch14_height")
pocket13 = body.newObject("PartDesign::Pocket", "Pocket012")
pocket13.Profile = sketch14
pocket13.setExpression("Length", "Params.pocket13_length")
pocket13.Reversed = True

# Sketch on XZ plane
sketch15 = body.newObject("Sketcher::SketchObject", "Sketch014")
sketch15.AttachmentSupport = (doc.getObject("XZ_Plane"), [""])
sketch15.MapMode = "FlatFace"
sketch15.AttachmentOffset = App.Placement(V(0, 0, -39.5), App.Rotation())
add_polygon(sketch15, [(-8, 3), (-8, 35), (8, 35), (8, 3)])  # lines 0-3
sketch15.addConstraint(Sketcher.Constraint("Vertical", 0))
sketch15.addConstraint(Sketcher.Constraint("Horizontal", 1))
sketch15.addConstraint(Sketcher.Constraint("Vertical", 2))
sketch15.addConstraint(Sketcher.Constraint("Horizontal", 3))
sketch15.addConstraint(Sketcher.Constraint("DistanceX", 1, 1, 1, 2, Q("16 mm")))
sketch15.addConstraint(Sketcher.Constraint("DistanceY", 0, 1, 0, 2, Q("32 mm")))
sketch15.addConstraint(Sketcher.Constraint("DistanceX", 0, 2, -1, 1, Q("8 mm")))
sketch15.addConstraint(Sketcher.Constraint("DistanceY", -1, 1, 0, 2, Q("35 mm")))
sketch15.setExpression("Constraints[8]", "Params.sketch15_width")
sketch15.setExpression("Constraints[9]", "Params.sketch15_height")
pocket14 = body.newObject("PartDesign::Pocket", "Pocket013")
pocket14.Profile = sketch15
pocket14.setExpression("Length", "Params.pocket14_length")
pocket14.Reversed = True

# Sketch on YZ plane
sketch16 = body.newObject("Sketcher::SketchObject", "Sketch015")
sketch16.AttachmentSupport = (doc.getObject("YZ_Plane"), [""])
sketch16.MapMode = "FlatFace"
sketch16.AttachmentOffset = App.Placement(V(0, 0, -8), App.Rotation())
add_polygon(sketch16, [(58, 35), (38, 35), (38, 3), (58, 3)])  # lines 0-3
sketch16.addConstraint(Sketcher.Constraint("Horizontal", 0))
sketch16.addConstraint(Sketcher.Constraint("Vertical", 1))
sketch16.addConstraint(Sketcher.Constraint("Horizontal", 2))
sketch16.addConstraint(Sketcher.Constraint("Vertical", 3))
sketch16.addConstraint(Sketcher.Constraint("DistanceX", 0, 2, 0, 1, Q("20 mm")))
sketch16.addConstraint(Sketcher.Constraint("DistanceY", 1, 2, 1, 1, Q("32 mm")))
sketch16.addConstraint(Sketcher.Constraint("DistanceY", -1, 1, 0, 2, Q("35 mm")))
sketch16.addConstraint(Sketcher.Constraint("DistanceX", -1, 1, 0, 2, Q("37.5 mm")))
sketch16.setExpression("Constraints[8]", "Params.sketch16_width")
sketch16.setExpression("Constraints[9]", "Params.sketch16_height")
pocket15 = body.newObject("PartDesign::Pocket", "Pocket014")
pocket15.Profile = sketch16
pocket15.setExpression("Length", "Params.pocket15_length")

# Sketch on YZ plane
sketch17 = body.newObject("Sketcher::SketchObject", "Sketch016")
sketch17.AttachmentSupport = (doc.getObject("YZ_Plane"), [""])
sketch17.MapMode = "FlatFace"
sketch17.AttachmentOffset = App.Placement(V(0, 0, 8), App.Rotation())
add_polygon(sketch17, [(58, 3), (38, 3), (38, 35), (58, 35)])  # lines 0-3
sketch17.addConstraint(Sketcher.Constraint("Horizontal", 0))
sketch17.addConstraint(Sketcher.Constraint("Vertical", 1))
sketch17.addConstraint(Sketcher.Constraint("Horizontal", 2))
sketch17.addConstraint(Sketcher.Constraint("Vertical", 3))
sketch17.addConstraint(Sketcher.Constraint("DistanceX", 0, 2, 0, 1, Q("20 mm")))
sketch17.addConstraint(Sketcher.Constraint("DistanceY", 1, 1, 1, 2, Q("32 mm")))
sketch17.addConstraint(Sketcher.Constraint("DistanceY", -1, 1, 0, 2, Q("3 mm")))
sketch17.addConstraint(Sketcher.Constraint("DistanceX", -1, 1, 0, 2, Q("37.5 mm")))
sketch17.setExpression("Constraints[8]", "Params.sketch17_width")
sketch17.setExpression("Constraints[9]", "Params.sketch17_height")
pocket16 = body.newObject("PartDesign::Pocket", "Pocket015")
pocket16.Profile = sketch17
pocket16.setExpression("Length", "Params.pocket16_length")
pocket16.Reversed = True

# Sketch on YZ plane
sketch18 = body.newObject("Sketcher::SketchObject", "Sketch017")
sketch18.AttachmentSupport = (doc.getObject("YZ_Plane"), [""])
sketch18.MapMode = "FlatFace"
sketch18.AttachmentOffset = App.Placement(V(0, 0, -35), App.Rotation())
add_polygon(sketch18, [(58, 3), (-38, 3), (-38, 35), (58, 35)])  # lines 0-3
sketch18.addConstraint(Sketcher.Constraint("Horizontal", 0))
sketch18.addConstraint(Sketcher.Constraint("Vertical", 1))
sketch18.addConstraint(Sketcher.Constraint("Horizontal", 2))
sketch18.addConstraint(Sketcher.Constraint("Vertical", 3))
sketch18.addConstraint(Sketcher.Constraint("DistanceX", 0, 2, 0, 1, Q("95 mm")))
sketch18.addConstraint(Sketcher.Constraint("DistanceY", 1, 1, 1, 2, Q("32 mm")))
sketch18.addConstraint(Sketcher.Constraint("DistanceY", -1, 1, 0, 2, Q("3 mm")))
sketch18.addConstraint(Sketcher.Constraint("DistanceX", 0, 2, -1, 1, Q("37.5 mm")))
sketch18.setExpression("Constraints[8]", "Params.sketch18_width")
sketch18.setExpression("Constraints[9]", "Params.sketch18_height")
pocket17 = body.newObject("PartDesign::Pocket", "Pocket016")
pocket17.Profile = sketch18
pocket17.setExpression("Length", "Params.pocket17_length")
pocket17.Reversed = True

# Sketch on XY plane
sketch19 = body.newObject("Sketcher::SketchObject", "Sketch018")
sketch19.AttachmentSupport = (doc.getObject("XY_Plane"), [""])
sketch19.MapMode = "FlatFace"
sketch19.addGeometry(Part.Circle(V(32, 56.5, 0), V(0, 0, 1), 1.5), False)
sketch19.addGeometry(Part.Circle(V(-32, 56.5, 0), V(0, 0, 1), 1.5), False)
sketch19.addGeometry(Part.Circle(V(-32, -36.5, 0), V(0, 0, 1), 1.5), False)
sketch19.addGeometry(Part.Circle(V(32, -36.5, 0), V(0, 0, 1), 1.5), False)
sketch19.addConstraint(Sketcher.Constraint("Equal", 0, 1))
sketch19.addConstraint(Sketcher.Constraint("Equal", 1, 2))
sketch19.addConstraint(Sketcher.Constraint("Equal", 2, 3))
sketch19.addConstraint(Sketcher.Constraint("Symmetric", 0, 3, 1, 3, -2))
sketch19.addConstraint(Sketcher.Constraint("Symmetric", 2, 3, 3, 3, -2))
sketch19.addConstraint(Sketcher.Constraint("Vertical", 1, 3, 2, 3))
sketch19.addConstraint(Sketcher.Constraint("Diameter", 0, Q("3 mm")))
sketch19.addConstraint(Sketcher.Constraint("DistanceX", -1, 1, 0, 3, Q("32 mm")))
sketch19.addConstraint(Sketcher.Constraint("DistanceY", 2, 3, 1, 3, Q("93 mm")))
sketch19.addConstraint(Sketcher.Constraint("DistanceY", -1, 1, 0, 3, Q("56.5 mm")))
sketch19.setExpression("Constraints[6]", "Params.sketch19_diameter")
pocket18 = body.newObject("PartDesign::Pocket", "Pocket017")
pocket18.Profile = sketch19
pocket18.setExpression("Length", "Params.pocket18_length")
pocket18.Reversed = True
doc.recompute()

fillet = body.newObject("PartDesign::Fillet", "Fillet")
fillet.Base = (pocket18, edges_at(pocket18, [
    (30, -37.5, 19),
    (-10, -57.5, 19),
    (-10, -37.5, 19),
    (10, -37.5, 19),
    (10, -57.5, 19),
    (30, 57.5, 19),
    (-10, 37.5, 19),
    (-10, 57.5, 19),
    (10, 57.5, 19),
    (10, 37.5, 19),
    (-30, 57.5, 19),
    (-30, -37.5, 19),
]))
fillet.setExpression("Radius", "Params.fillet_radius")
doc.recompute()

fillet2 = body.newObject("PartDesign::Fillet", "Fillet001")
fillet2.Base = (fillet, edges_at(fillet, [
    (35, 59.5, 1.5),
    (8, 59.5, 1.5),
    (-8, 59.5, 1.5),
    (-35, 59.5, 1.5),
    (-35, 11.647, 1.528),
    (-35, 27.353, 1.528),
    (-35, -39.5, 1.5),
    (-12, -59.5, 1.5),
    (12, -59.5, 1.5),
    (35, -39.5, 1.5),
]))
fillet2.setExpression("Radius", "Params.fillet2_radius")

doc.recompute()
